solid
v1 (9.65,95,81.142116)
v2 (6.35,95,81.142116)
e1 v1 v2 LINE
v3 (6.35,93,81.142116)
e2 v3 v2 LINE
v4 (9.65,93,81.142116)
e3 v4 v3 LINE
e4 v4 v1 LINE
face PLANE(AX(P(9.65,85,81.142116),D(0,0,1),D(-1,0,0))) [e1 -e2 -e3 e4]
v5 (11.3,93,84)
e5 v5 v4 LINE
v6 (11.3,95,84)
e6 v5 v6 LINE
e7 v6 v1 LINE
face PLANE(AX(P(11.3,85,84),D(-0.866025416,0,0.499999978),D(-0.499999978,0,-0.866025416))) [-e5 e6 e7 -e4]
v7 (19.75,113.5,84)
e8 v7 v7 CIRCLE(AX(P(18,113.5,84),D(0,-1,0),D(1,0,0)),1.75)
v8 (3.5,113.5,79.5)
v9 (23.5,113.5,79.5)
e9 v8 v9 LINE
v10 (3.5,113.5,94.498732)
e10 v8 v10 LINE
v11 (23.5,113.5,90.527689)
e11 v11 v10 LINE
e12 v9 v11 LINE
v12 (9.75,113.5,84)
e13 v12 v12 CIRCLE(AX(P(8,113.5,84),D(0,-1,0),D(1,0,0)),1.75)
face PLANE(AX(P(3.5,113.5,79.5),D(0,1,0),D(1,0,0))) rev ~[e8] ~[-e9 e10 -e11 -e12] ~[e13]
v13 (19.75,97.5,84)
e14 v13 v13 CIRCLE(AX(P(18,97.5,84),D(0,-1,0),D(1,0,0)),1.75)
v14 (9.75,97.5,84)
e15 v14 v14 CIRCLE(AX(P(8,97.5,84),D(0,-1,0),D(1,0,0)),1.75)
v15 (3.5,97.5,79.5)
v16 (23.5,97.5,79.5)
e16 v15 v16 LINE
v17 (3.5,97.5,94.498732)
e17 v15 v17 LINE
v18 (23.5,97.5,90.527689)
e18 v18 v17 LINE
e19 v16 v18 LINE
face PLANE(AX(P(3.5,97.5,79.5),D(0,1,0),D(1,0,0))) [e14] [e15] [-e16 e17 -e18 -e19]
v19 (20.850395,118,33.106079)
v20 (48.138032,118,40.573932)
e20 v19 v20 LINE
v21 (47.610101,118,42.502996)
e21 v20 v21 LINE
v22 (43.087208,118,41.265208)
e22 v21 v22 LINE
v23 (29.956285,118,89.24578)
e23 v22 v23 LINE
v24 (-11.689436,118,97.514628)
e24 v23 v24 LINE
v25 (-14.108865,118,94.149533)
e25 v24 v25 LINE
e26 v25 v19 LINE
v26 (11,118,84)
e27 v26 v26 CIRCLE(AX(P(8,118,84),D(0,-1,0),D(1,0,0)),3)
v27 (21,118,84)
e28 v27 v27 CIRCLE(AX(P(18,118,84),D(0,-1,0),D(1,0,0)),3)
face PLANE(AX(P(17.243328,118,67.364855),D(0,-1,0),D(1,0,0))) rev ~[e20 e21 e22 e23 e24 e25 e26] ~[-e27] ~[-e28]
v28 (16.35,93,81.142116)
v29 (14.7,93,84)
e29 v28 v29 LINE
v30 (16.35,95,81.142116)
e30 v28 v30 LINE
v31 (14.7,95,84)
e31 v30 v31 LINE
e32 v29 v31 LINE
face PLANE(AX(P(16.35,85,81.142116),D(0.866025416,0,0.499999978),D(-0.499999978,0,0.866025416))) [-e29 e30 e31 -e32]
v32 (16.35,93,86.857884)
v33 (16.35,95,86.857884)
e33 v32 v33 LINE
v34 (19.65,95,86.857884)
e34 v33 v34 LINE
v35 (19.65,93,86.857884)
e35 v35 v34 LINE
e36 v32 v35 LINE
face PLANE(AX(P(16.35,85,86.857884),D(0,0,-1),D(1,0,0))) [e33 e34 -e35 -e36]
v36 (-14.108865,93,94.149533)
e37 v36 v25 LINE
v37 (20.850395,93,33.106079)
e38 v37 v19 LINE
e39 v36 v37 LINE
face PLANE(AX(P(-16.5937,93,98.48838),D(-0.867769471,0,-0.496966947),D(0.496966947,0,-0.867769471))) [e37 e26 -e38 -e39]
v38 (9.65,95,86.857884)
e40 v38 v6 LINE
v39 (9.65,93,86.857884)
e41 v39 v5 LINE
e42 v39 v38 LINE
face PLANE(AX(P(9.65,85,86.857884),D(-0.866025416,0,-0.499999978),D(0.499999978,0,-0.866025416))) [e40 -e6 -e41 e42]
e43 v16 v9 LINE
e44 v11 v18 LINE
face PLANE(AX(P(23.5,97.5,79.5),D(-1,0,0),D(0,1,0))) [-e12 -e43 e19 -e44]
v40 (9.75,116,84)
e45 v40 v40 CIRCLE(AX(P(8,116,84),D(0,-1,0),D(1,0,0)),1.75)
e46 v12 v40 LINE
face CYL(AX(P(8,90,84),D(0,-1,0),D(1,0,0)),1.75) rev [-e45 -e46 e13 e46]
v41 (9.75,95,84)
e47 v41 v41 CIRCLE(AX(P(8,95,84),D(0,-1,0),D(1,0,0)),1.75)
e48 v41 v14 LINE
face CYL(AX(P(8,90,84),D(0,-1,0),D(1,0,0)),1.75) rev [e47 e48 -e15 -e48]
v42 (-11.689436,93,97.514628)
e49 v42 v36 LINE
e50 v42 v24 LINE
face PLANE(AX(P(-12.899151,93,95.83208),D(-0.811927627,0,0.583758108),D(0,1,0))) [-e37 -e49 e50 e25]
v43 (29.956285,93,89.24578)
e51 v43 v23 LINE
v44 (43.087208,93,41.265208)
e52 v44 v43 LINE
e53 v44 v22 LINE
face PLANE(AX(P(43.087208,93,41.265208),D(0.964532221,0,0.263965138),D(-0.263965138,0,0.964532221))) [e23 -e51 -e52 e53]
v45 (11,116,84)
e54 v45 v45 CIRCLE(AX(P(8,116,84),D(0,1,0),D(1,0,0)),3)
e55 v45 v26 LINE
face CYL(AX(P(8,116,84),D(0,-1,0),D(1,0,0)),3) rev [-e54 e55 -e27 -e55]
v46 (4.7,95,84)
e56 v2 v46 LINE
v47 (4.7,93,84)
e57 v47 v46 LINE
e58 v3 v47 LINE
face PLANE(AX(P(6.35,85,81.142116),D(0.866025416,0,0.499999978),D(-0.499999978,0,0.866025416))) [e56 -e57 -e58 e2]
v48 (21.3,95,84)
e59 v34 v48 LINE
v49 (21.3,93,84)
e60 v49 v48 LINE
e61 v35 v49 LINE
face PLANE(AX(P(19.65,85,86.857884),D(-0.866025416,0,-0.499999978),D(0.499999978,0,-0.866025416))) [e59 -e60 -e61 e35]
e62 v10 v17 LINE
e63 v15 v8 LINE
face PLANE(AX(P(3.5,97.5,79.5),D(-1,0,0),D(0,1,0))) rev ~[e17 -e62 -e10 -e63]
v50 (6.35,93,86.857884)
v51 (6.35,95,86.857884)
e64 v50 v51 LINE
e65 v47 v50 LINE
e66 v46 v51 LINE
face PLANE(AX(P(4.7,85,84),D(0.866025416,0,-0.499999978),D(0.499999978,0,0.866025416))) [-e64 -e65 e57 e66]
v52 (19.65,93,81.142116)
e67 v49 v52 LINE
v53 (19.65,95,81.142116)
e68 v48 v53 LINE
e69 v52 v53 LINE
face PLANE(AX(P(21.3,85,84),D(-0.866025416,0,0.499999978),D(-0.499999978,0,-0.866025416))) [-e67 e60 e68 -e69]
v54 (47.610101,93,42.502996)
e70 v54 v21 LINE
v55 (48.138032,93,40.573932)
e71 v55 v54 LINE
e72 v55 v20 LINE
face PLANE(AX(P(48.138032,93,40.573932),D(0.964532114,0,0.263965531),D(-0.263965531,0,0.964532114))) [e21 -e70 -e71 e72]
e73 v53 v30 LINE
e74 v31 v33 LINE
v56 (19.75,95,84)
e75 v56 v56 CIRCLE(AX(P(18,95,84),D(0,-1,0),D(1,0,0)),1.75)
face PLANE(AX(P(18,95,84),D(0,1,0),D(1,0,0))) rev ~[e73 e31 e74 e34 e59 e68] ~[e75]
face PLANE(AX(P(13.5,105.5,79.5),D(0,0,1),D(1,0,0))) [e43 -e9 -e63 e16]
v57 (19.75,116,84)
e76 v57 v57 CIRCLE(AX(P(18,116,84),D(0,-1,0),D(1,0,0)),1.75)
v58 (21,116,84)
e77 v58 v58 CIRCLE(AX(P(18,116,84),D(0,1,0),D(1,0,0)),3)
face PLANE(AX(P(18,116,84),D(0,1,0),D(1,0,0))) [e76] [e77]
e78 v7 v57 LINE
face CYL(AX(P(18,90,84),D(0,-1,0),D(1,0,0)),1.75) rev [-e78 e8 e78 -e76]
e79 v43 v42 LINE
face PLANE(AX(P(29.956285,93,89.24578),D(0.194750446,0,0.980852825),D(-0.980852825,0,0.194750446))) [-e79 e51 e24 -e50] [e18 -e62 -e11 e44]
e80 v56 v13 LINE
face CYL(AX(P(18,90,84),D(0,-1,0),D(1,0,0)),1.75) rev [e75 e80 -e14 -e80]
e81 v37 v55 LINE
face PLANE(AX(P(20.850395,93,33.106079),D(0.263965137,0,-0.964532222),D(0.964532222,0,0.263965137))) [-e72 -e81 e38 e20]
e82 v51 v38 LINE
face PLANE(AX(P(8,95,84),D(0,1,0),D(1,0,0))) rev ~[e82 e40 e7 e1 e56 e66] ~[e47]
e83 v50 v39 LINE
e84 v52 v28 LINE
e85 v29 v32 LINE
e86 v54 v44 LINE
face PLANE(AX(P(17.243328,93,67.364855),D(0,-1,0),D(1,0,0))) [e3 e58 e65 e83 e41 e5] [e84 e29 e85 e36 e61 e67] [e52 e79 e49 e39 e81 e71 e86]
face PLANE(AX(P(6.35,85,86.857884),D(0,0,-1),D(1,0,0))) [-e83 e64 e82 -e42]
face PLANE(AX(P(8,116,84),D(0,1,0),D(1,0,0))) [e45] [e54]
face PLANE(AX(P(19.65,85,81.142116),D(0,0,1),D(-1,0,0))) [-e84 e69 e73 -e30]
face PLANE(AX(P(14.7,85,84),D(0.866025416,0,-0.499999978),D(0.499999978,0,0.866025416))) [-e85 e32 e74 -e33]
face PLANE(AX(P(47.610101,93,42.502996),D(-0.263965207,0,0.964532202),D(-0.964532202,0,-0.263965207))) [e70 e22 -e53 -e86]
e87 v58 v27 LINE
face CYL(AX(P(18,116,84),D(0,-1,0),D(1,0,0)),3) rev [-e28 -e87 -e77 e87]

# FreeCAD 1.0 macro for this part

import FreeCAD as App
import Part
import Sketcher
Q = App.Units.Quantity


def edges_at(feature, points):
    """Names of the edges that pass closest to the given points."""
    edges = feature.Shape.Edges
    near = lambda p: min(range(len(edges)), key=lambda i: edges[i].distToShape(Part.Vertex(*p))[0])
    return sorted({f"Edge{near(p) + 1}" for p in points})

doc = App.newDocument("Part")
body = doc.addObject("PartDesign::Body", "Body")

# Sketch on XY plane
sketch1 = body.newObject("Sketcher::SketchObject", "Sketch")
sketch1.AttachmentSupport = (doc.getObject("XY_Plane"), [""])
sketch1.MapMode = "FlatFace"
sketch1.addGeometry(Part.Circle(App.Vector(0, 0, 0), App.Vector(0, 0, 1), 3), False)
sketch1.addConstraint([
    Sketcher.Constraint("Coincident", 0, 3, -1, 1),
    Sketcher.Constraint("Diameter", 0, Q("6 mm")),
])
pad1 = body.newObject("PartDesign::Pad", "Pad")
pad1.Profile = sketch1
pad1.Length = 32
body2 = doc.addObject("PartDesign::Body", "Body001")
doc.recompute()

body.Placement = App.Placement(App.Vector(0, 0, 0), App.Rotation(App.Vector(1, 0, 0), 270))
boolean = body2.newObject("PartDesign::Boolean", "Boolean")
boolean.Type = "Fuse"
boolean.addObjects([body])
body3 = doc.addObject("PartDesign::Body", "Body002")
doc.recompute()

body2.Placement = App.Placement(App.Vector(8, 116, 84), App.Rotation(App.Vector(0, 0, 1), 0))
boolean2 = body3.newObject("PartDesign::Boolean", "Boolean001")
boolean2.Type = "Fuse"
boolean2.addObjects([body2])
body4 = doc.addObject("PartDesign::Body", "Body003")

# Sketch on XY plane
sketch2 = body4.newObject("Sketcher::SketchObject", "Sketch001")
sketch2.AttachmentSupport = (doc.getObject("XY_Plane003"), [""])
sketch2.MapMode = "FlatFace"
sketch2.addGeometry(Part.Circle(App.Vector(0, 0, 0), App.Vector(0, 0, 1), 3), False)
sketch2.addConstraint([
    Sketcher.Constraint("Coincident", 0, 3, -1, 1),
    Sketcher.Constraint("Diameter", 0, Q("6 mm")),
])
pad2 = body4.newObject("PartDesign::Pad", "Pad001")
pad2.Profile = sketch2
pad2.Length = 32
body5 = doc.addObject("PartDesign::Body", "Body004")
doc.recompute()

body4.Placement = App.Placement(App.Vector(0, 0, 0), App.Rotation(App.Vector(1, 0, 0), 270))
boolean3 = body5.newObject("PartDesign::Boolean", "Boolean002")
boolean3.Type = "Fuse"
boolean3.addObjects([body4])
body6 = doc.addObject("PartDesign::Body", "Body005")
body6.AllowCompound = True
doc.recompute()

body5.Placement = App.Placement(App.Vector(18, 116, 84), App.Rotation(App.Vector(0, 0, 1), 0))
boolean4 = body6.newObject("PartDesign::Boolean", "Boolean003")
boolean4.Type = "Fuse"
boolean4.addObjects([body5])
doc.recompute()

boolean5 = body6.newObject("PartDesign::Boolean", "Boolean004")
boolean5.Type = "Fuse"
boolean5.addObjects([body3])
body7 = doc.addObject("PartDesign::Body", "Body006")

# Sketch on XY plane
sketch3 = body7.newObject("Sketcher::SketchObject", "Sketch002")
sketch3.AttachmentSupport = (doc.getObject("XY_Plane006"), [""])
sketch3.MapMode = "FlatFace"
sketch3.addGeometry([
    Part.LineSegment(App.Vector(3.3, 0, 0), App.Vector(1.65, 2.857884, 0)),  # 0
    Part.LineSegment(App.Vector(1.65, 2.857884, 0), App.Vector(-1.65, 2.857884, 0)),  # 1
    Part.LineSegment(App.Vector(-1.65, 2.857884, 0), App.Vector(-3.3, 0, 0)),  # 2
    Part.LineSegment(App.Vector(-3.3, 0, 0), App.Vector(-1.65, -2.857884, 0)),  # 3
    Part.LineSegment(App.Vector(-1.65, -2.857884, 0), App.Vector(1.65, -2.857884, 0)),  # 4
    Part.LineSegment(App.Vector(1.65, -2.857884, 0), App.Vector(3.3, 0, 0)),  # 5
], False)
sketch3.addConstraint([
    Sketcher.Constraint("Coincident", 0, 2, 1, 1),
    Sketcher.Constraint("Coincident", 1, 2, 2, 1),
    Sketcher.Constraint("Coincident", 2, 2, 3, 1),
    Sketcher.Constraint("Coincident", 3, 2, 4, 1),
    Sketcher.Constraint("Coincident", 4, 2, 5, 1),
    Sketcher.Constraint("Coincident", 5, 2, 0, 1),
    Sketcher.Constraint("Horizontal", 1),
    Sketcher.Constraint("Horizontal", 4),
    Sketcher.Constraint("Symmetric", 0, 2, 3, 2, -1, 1),
    Sketcher.Constraint("Symmetric", 2, 2, 5, 2, -1, 1),
    Sketcher.Constraint("PointOnObject", 2, 2, -1),
    Sketcher.Constraint("Parallel", 2, 5),
    Sketcher.Constraint("Vertical", 1, 2, 3, 2),
    Sketcher.Constraint("Angle", 0, Q("119.999999 deg")),
    Sketcher.Constraint("DistanceX", 1, 2, 1, 1, Q("3.3 mm")),
    Sketcher.Constraint("Distance", 0, Q("3.3 mm")),
])
pad3 = body7.newObject("PartDesign::Pad", "Pad002")
pad3.Profile = sketch3
pad3.Length = 10
body8 = doc.addObject("PartDesign::Body", "Body007")
doc.recompute()

body7.Placement = App.Placement(App.Vector(0, 0, 0), App.Rotation(App.Vector(1, 0, 0), 270))
boolean6 = body8.newObject("PartDesign::Boolean", "Boolean005")
boolean6.Type = "Fuse"
boolean6.addObjects([body7])
body9 = doc.addObject("PartDesign::Body", "Body008")
doc.recompute()

body8.Placement = App.Placement(App.Vector(18, 85, 84), App.Rotation(App.Vector(0, 0, 1), 0))
boolean7 = body9.newObject("PartDesign::Boolean", "Boolean006")
boolean7.Type = "Fuse"
boolean7.addObjects([body8])
body10 = doc.addObject("PartDesign::Body", "Body009")

# Sketch on XY plane
sketch4 = body10.newObject("Sketcher::SketchObject", "Sketch003")
sketch4.AttachmentSupport = (doc.getObject("XY_Plane009"), [""])
sketch4.MapMode = "FlatFace"
sketch4.addGeometry([
    Part.LineSegment(App.Vector(3.3, 0, 0), App.Vector(1.65, 2.857884, 0)),  # 0
    Part.LineSegment(App.Vector(1.65, 2.857884, 0), App.Vector(-1.65, 2.857884, 0)),  # 1
    Part.LineSegment(App.Vector(-1.65, 2.857884, 0), App.Vector(-3.3, 0, 0)),  # 2
    Part.LineSegment(App.Vector(-3.3, 0, 0), App.Vector(-1.65, -2.857884, 0)),  # 3
    Part.LineSegment(App.Vector(-1.65, -2.857884, 0), App.Vector(1.65, -2.857884, 0)),  # 4
    Part.LineSegment(App.Vector(1.65, -2.857884, 0), App.Vector(3.3, 0, 0)),  # 5
], False)
sketch4.addConstraint([
    Sketcher.Constraint("Coincident", 0, 2, 1, 1),
    Sketcher.Constraint("Coincident", 1, 2, 2, 1),
    Sketcher.Constraint("Coincident", 2, 2, 3, 1),
    Sketcher.Constraint("Coincident", 3, 2, 4, 1),
    Sketcher.Constraint("Coincident", 4, 2, 5, 1),
    Sketcher.Constraint("Coincident", 5, 2, 0, 1),
    Sketcher.Constraint("Horizontal", 1),
    Sketcher.Constraint("Horizontal", 4),
    Sketcher.Constraint("Symmetric", 0, 2, 3, 2, -1, 1),
    Sketcher.Constraint("Symmetric", 2, 2, 5, 2, -1, 1),
    Sketcher.Constraint("PointOnObject", 2, 2, -1),
    Sketcher.Constraint("Parallel", 2, 5),
    Sketcher.Constraint("Vertical", 1, 2, 3, 2),
    Sketcher.Constraint("Angle", 0, Q("119.999999 deg")),
    Sketcher.Constraint("DistanceX", 1, 2, 1, 1, Q("3.3 mm")),
    Sketcher.Constraint("Distance", 0, Q("3.3 mm")),
])
pad4 = body10.newObject("PartDesign::Pad", "Pad003")
pad4.Profile = sketch4
pad4.Length = 10
body11 = doc.addObject("PartDesign::Body", "Body010")
doc.recompute()

body10.Placement = App.Placement(App.Vector(0, 0, 0), App.Rotation(App.Vector(1, 0, 0), 270))
boolean8 = body11.newObject("PartDesign::Boolean", "Boolean007")
boolean8.Type = "Fuse"
boolean8.addObjects([body10])
body12 = doc.addObject("PartDesign::Body", "Body011")
body12.AllowCompound = True
doc.recompute()

body11.Placement = App.Placement(App.Vector(8, 85, 84), App.Rotation(App.Vector(0, 0, 1), 0))
boolean9 = body12.newObject("PartDesign::Boolean", "Boolean008")
boolean9.Type = "Fuse"
boolean9.addObjects([body11])
doc.recompute()

boolean10 = body12.newObject("PartDesign::Boolean", "Boolean009")
boolean10.Type = "Fuse"
boolean10.addObjects([body9])
body13 = doc.addObject("PartDesign::Body", "Body012")

# Sketch on XY plane
sketch5 = body13.newObject("Sketcher::SketchObject", "Sketch004")
sketch5.AttachmentSupport = (doc.getObject("XY_Plane012"), [""])
sketch5.MapMode = "FlatFace"
sketch5.addGeometry(Part.Circle(App.Vector(0, 0, 0), App.Vector(0, 0, 1), 1.75), False)
sketch5.addConstraint([
    Sketcher.Constraint("Coincident", 0, 3, -1, 1),
    Sketcher.Constraint("Diameter", 0, Q("3.5 mm")),
])
pad5 = body13.newObject("PartDesign::Pad", "Pad004")
pad5.Profile = sketch5
pad5.Length = 32
body14 = doc.addObject("PartDesign::Body", "Body013")
doc.recompute()

body13.Placement = App.Placement(App.Vector(0, 0, 0), App.Rotation(App.Vector(1, 0, 0), 270))
boolean11 = body14.newObject("PartDesign::Boolean", "Boolean010")
boolean11.Type = "Fuse"
boolean11.addObjects([body13])
body15 = doc.addObject("PartDesign::Body", "Body014")
doc.recompute()

body14.Placement = App.Placement(App.Vector(8, 90, 84), App.Rotation(App.Vector(0, 0, 1), 0))
boolean12 = body15.newObject("PartDesign::Boolean", "Boolean011")
boolean12.Type = "Fuse"
boolean12.addObjects([body14])
body16 = doc.addObject("PartDesign::Body", "Body015")

# Sketch on XY plane
sketch6 = body16.newObject("Sketcher::SketchObject", "Sketch005")
sketch6.AttachmentSupport = (doc.getObject("XY_Plane015"), [""])
sketch6.MapMode = "FlatFace"
sketch6.addGeometry(Part.Circle(App.Vector(0, 0, 0), App.Vector(0, 0, 1), 1.75), False)
sketch6.addConstraint([
    Sketcher.Constraint("Coincident", 0, 3, -1, 1),
    Sketcher.Constraint("Diameter", 0, Q("3.5 mm")),
])
pad6 = body16.newObject("PartDesign::Pad", "Pad005")
pad6.Profile = sketch6
pad6.Length = 32
body17 = doc.addObject("PartDesign::Body", "Body016")
doc.recompute()

body16.Placement = App.Placement(App.Vector(0, 0, 0), App.Rotation(App.Vector(1, 0, 0), 270))
boolean13 = body17.newObject("PartDesign::Boolean", "Boolean012")
boolean13.Type = "Fuse"
boolean13.addObjects([body16])
body18 = doc.addObject("PartDesign::Body", "Body017")
body18.AllowCompound = True
doc.recompute()

body17.Placement = App.Placement(App.Vector(18, 90, 84), App.Rotation(App.Vector(0, 0, 1), 0))
boolean14 = body18.newObject("PartDesign::Boolean", "Boolean013")
boolean14.Type = "Fuse"
boolean14.addObjects([body17])
doc.recompute()

boolean15 = body18.newObject("PartDesign::Boolean", "Boolean014")
boolean15.Type = "Fuse"
boolean15.addObjects([body15])
body19 = doc.addObject("PartDesign::Body", "Body018")

# Sketch on XY plane
sketch7 = body19.newObject("Sketcher::SketchObject", "Sketch006")
sketch7.AttachmentSupport = (doc.getObject("XY_Plane018"), [""])
sketch7.MapMode = "FlatFace"
sketch7.AttachmentOffset = App.Placement(App.Vector(0, 0, 79.5), App.Rotation())
sketch7.addGeometry([
    Part.LineSegment(App.Vector(3.5, 113.5, 0), App.Vector(3.5, 97.5, 0)),
    Part.LineSegment(App.Vector(3.5, 97.5, 0), App.Vector(23.5, 97.5, 0)),
    Part.LineSegment(App.Vector(23.5, 97.5, 0), App.Vector(23.5, 113.5, 0)),
    Part.LineSegment(App.Vector(23.5, 113.5, 0), App.Vector(3.5, 113.5, 0)),
], False)
sketch7.addConstraint([
    Sketcher.Constraint("Coincident", 0, 2, 1, 1),
    Sketcher.Constraint("Coincident", 1, 2, 2, 1),
    Sketcher.Constraint("Coincident", 2, 2, 3, 1),
    Sketcher.Constraint("Coincident", 3, 2, 0, 1),
    Sketcher.Constraint("Vertical", 0),
    Sketcher.Constraint("Horizontal", 1),
    Sketcher.Constraint("Vertical", 2),
    Sketcher.Constraint("Horizontal", 3),
    Sketcher.Constraint("DistanceX", 1, 1, 1, 2, Q("20 mm")),
    Sketcher.Constraint("DistanceY", 0, 2, 0, 1, Q("16 mm")),
    Sketcher.Constraint("DistanceX", -1, 1, 0, 2, Q("3.5 mm")),
    Sketcher.Constraint("DistanceY", -1, 1, 0, 2, Q("97.5 mm")),
])
pad7 = body19.newObject("PartDesign::Pad", "Pad006")
pad7.Profile = sketch7
pad7.Length = 56
body20 = doc.addObject("PartDesign::Body", "Body019")

# Sketch on XZ plane
sketch8 = body20.newObject("Sketcher::SketchObject", "Sketch007")
sketch8.AttachmentSupport = (doc.getObject("XZ_Plane019"), [""])
sketch8.MapMode = "FlatFace"
sketch8.AttachmentOffset = App.Placement(App.Vector(0, 0, -93), App.Rotation())
sketch8.addGeometry([
    Part.LineSegment(App.Vector(29.956285, 89.24578, 0), App.Vector(43.087208, 41.265208, 0)),  # 0
    Part.LineSegment(App.Vector(43.087208, 41.265208, 0), App.Vector(47.610101, 42.502996, 0)),  # 1
    Part.LineSegment(App.Vector(47.610101, 42.502996, 0), App.Vector(48.138032, 40.573932, 0)),  # 2
    Part.LineSegment(App.Vector(48.138032, 40.573932, 0), App.Vector(20.850395, 33.106079, 0)),  # 3
    Part.LineSegment(App.Vector(20.850395, 33.106079, 0), App.Vector(-16.5937, 98.48838, 0)),  # 4
    Part.LineSegment(App.Vector(-16.5937, 98.48838, 0), App.Vector(29.956285, 89.24578, 0)),  # 5
], False)
sketch8.addConstraint([
    Sketcher.Constraint("Coincident", 0, 2, 1, 1),
    Sketcher.Constraint("Coincident", 1, 2, 2, 1),
    Sketcher.Constraint("Coincident", 2, 2, 3, 1),
    Sketcher.Constraint("Coincident", 3, 2, 4, 1),
    Sketcher.Constraint("Coincident", 4, 2, 5, 1),
    Sketcher.Constraint("Coincident", 5, 2, 0, 1),
    Sketcher.Constraint("Perpendicular", 0, 1),
    Sketcher.Constraint("Perpendicular", 1, 2),
    Sketcher.Constraint("Perpendicular", 2, 3),
    Sketcher.Constraint("Distance", 2, Q("2 mm")),
    Sketcher.Constraint("DistanceX", -1, 1, 1, 2, Q("47.610101 mm")),
    Sketcher.Constraint("DistanceX", 4, 2, -1, 1, Q("16.5937 mm")),
    Sketcher.Constraint("DistanceY", 3, 2, 4, 2, Q("65.382301 mm")),
    Sketcher.Constraint("DistanceY", 5, 2, 4, 2, Q("9.2426 mm")),
    Sketcher.Constraint("Distance", 1, Q("4.689209 mm")),
    Sketcher.Constraint("DistanceY", -1, 1, 3, 2, Q("33.106079 mm")),
    Sketcher.Constraint("DistanceY", 0, 2, 1, 2, Q("1.237788 mm")),
    Sketcher.Constraint("DistanceY", 3, 2, 0, 2, Q("8.159129 mm")),
])
pad8 = body20.newObject("PartDesign::Pad", "Pad007")
pad8.Profile = sketch8
pad8.Length = 25
pad8.Reversed = True
doc.recompute()

boolean16 = body20.newObject("PartDesign::Boolean", "Boolean015")
boolean16.Type = "Cut"
boolean16.addObjects([body19])
doc.recompute()

boolean17 = body20.newObject("PartDesign::Boolean", "Boolean016")
boolean17.Type = "Cut"
boolean17.addObjects([body18])
doc.recompute()

boolean18 = body20.newObject("PartDesign::Boolean", "Boolean017")
boolean18.Type = "Cut"
boolean18.addObjects([body12])
doc.recompute()

boolean19 = body20.newObject("PartDesign::Boolean", "Boolean018")
boolean19.Type = "Cut"
boolean19.addObjects([body6])
doc.recompute()

chamfer = body20.newObject("PartDesign::Chamfer", "Chamfer")
chamfer.Base = (boolean19, edges_at(boolean19, [(-16.594, 105.5, 98.488)]))
chamfer.Size = 5

doc.recompute()
